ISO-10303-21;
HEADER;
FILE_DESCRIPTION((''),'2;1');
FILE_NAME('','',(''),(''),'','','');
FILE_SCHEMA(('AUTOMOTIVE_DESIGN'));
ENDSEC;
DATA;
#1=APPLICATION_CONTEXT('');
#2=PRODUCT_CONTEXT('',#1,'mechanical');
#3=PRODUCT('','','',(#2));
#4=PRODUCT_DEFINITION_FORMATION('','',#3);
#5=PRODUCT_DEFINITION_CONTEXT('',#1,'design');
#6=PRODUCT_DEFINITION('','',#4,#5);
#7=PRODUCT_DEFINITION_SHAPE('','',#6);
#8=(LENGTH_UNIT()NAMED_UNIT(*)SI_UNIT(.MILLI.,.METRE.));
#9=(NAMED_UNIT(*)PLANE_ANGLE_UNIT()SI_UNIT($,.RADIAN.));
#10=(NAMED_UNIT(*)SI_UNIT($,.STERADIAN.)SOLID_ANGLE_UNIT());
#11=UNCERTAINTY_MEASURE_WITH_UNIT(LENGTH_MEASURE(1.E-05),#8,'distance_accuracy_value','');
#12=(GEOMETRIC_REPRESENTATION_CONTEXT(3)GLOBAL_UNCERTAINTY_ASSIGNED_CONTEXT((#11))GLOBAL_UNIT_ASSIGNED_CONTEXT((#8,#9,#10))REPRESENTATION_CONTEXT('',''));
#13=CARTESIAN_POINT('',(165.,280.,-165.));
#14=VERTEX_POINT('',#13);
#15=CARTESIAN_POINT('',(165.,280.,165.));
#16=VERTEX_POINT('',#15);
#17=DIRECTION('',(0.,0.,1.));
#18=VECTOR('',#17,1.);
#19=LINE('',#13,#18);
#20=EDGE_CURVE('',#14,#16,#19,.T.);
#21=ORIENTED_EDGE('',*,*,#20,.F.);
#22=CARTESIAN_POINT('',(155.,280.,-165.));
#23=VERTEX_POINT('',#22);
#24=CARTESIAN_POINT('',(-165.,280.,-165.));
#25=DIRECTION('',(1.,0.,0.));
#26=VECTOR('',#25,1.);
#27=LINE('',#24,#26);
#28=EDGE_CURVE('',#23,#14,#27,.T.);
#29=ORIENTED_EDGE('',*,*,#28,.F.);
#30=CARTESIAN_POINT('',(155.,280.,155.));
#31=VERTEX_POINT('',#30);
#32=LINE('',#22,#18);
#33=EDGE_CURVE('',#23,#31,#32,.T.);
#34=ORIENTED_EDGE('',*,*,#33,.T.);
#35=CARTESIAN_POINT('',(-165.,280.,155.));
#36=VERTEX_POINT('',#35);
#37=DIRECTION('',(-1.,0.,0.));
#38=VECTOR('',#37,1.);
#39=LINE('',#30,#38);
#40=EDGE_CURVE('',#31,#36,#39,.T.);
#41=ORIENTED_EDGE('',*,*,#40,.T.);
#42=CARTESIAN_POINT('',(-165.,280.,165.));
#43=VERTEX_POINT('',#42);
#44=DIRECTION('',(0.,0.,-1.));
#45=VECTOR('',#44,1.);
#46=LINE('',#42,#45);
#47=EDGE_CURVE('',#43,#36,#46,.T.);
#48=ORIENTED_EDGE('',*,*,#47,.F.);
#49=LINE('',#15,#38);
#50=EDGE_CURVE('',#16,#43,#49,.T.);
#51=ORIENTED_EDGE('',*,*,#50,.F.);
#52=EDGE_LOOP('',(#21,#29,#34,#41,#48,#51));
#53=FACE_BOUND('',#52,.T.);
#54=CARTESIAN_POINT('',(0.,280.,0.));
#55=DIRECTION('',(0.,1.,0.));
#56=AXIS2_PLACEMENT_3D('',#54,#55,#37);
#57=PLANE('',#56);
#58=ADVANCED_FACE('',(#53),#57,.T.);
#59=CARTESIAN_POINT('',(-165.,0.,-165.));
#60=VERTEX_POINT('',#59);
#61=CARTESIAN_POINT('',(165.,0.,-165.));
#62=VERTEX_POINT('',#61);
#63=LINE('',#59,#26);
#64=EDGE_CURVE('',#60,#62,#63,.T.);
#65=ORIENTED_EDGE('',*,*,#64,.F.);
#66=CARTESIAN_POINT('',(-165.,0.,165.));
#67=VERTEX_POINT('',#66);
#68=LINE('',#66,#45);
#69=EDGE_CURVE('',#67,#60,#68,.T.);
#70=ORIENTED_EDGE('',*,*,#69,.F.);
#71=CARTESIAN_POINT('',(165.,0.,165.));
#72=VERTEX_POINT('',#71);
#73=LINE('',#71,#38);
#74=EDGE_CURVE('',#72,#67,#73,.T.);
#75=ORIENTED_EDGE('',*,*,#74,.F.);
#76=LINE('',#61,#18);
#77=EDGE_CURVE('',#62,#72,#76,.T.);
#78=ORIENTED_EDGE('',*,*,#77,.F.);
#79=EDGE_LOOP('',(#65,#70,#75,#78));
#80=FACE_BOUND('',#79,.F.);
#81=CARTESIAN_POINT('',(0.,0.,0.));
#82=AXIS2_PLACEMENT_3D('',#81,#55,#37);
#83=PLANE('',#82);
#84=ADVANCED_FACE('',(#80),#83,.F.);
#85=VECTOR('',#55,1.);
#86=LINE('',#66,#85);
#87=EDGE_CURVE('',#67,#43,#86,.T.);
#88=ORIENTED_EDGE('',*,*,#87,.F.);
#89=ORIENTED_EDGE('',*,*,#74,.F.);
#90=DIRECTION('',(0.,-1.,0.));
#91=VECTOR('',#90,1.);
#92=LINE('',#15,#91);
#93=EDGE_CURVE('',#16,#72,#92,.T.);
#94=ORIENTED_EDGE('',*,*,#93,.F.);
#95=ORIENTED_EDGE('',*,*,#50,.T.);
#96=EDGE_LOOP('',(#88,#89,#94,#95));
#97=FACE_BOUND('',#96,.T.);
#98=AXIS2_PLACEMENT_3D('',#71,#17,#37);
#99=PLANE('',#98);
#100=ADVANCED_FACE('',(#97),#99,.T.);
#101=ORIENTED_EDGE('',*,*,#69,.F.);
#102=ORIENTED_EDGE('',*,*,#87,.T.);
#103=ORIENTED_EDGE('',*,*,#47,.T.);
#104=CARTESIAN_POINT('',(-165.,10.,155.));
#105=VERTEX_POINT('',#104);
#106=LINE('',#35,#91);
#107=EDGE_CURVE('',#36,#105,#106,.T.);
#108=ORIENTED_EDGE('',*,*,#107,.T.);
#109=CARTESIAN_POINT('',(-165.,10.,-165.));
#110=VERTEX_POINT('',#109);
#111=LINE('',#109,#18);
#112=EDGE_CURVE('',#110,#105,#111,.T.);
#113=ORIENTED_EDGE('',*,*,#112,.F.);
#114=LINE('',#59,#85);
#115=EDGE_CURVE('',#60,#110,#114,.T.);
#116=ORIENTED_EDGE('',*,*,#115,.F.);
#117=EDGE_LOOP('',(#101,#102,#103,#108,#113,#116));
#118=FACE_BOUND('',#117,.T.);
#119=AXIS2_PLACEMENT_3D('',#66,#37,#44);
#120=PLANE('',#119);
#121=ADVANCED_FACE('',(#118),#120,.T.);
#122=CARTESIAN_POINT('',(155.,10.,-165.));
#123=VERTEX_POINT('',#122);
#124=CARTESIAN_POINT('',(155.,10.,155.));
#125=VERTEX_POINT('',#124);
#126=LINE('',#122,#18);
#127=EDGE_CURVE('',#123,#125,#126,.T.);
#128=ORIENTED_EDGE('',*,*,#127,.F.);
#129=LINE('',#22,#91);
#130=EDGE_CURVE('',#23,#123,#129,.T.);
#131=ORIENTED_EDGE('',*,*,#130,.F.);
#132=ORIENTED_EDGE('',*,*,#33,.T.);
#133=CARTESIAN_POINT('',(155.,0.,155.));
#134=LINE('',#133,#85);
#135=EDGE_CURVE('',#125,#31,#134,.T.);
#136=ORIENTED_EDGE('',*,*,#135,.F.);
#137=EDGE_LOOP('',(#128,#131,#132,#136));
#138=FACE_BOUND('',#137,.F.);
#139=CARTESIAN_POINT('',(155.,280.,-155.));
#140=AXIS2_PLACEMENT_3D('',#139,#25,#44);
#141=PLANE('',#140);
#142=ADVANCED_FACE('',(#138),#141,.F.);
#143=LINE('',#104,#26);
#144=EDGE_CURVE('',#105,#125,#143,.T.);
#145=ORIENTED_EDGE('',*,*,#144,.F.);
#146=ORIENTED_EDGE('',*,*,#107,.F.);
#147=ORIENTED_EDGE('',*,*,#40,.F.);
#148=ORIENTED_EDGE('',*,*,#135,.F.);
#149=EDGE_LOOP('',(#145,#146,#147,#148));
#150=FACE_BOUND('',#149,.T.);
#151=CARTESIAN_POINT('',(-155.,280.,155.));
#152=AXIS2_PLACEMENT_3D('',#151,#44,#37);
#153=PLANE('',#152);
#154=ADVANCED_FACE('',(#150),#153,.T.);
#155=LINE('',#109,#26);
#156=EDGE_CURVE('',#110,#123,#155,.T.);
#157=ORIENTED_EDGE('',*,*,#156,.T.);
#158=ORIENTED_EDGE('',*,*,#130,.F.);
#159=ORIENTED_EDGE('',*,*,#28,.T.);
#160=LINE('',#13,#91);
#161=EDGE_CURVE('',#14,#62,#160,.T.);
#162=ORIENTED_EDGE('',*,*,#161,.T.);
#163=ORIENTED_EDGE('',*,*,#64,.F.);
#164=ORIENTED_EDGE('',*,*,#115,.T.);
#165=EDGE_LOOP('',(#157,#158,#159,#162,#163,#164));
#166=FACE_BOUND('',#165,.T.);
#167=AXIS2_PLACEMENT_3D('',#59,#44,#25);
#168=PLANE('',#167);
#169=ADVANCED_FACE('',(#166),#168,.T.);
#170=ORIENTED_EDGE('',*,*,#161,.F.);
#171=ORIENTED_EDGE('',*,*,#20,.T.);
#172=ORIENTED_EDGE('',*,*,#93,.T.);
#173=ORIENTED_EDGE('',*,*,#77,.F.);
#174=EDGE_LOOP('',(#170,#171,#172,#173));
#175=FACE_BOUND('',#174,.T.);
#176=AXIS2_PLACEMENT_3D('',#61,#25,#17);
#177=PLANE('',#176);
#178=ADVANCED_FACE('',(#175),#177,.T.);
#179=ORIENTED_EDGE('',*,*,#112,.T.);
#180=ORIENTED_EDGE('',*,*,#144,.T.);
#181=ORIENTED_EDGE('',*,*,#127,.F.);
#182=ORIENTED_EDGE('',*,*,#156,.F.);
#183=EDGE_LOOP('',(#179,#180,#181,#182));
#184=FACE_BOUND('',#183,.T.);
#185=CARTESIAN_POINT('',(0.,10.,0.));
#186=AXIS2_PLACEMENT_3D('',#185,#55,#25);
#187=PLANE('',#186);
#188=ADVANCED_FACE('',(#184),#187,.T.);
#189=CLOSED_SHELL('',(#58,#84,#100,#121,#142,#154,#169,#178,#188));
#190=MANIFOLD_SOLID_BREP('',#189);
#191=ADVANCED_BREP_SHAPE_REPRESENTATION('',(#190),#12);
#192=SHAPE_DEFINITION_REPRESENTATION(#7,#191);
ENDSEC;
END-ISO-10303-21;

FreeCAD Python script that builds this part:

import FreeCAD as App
import Part
import Sketcher

V = App.Vector

doc = App.newDocument("Part")
params = doc.addObject("Spreadsheet::Sheet", "Params")
for row, (alias, value) in enumerate([
    ("sketch1_width", "330 mm"),
    ("pad1_length", "10 mm"),
    ("sketch2_width", "310 mm"),
    ("sketch2_width2", "330 mm"),
    ("pad2_length", "280 mm"),
    ("sketch3_width", "310 mm"),
    ("sketch3_height", "10 mm"),
    ("pocket1_length", "270 mm"),
    ("sketch4_width", "10 mm"),
    ("sketch4_height", "320 mm"),
    ("pocket2_length", "270 mm"),
], start=1):
    params.set(f"A{row}", alias)
    params.set(f"B{row}", "=" + value)
    params.setAlias(f"B{row}", alias)

body = doc.addObject("PartDesign::Body", "Body")

# Sketch on XZ plane
sketch1 = body.newObject("Sketcher::SketchObject", "Sketch")
sketch1.AttachmentSupport = (doc.getObject("XZ_Plane"), [""])
sketch1.MapMode = "FlatFace"
sketch1.addGeometry(Part.LineSegment(V(165, -165, 0), V(-165, -165, 0)), False)
sketch1.addGeometry(Part.LineSegment(V(-165, -165, 0), V(-165, 165, 0)), False)
sketch1.addGeometry(Part.LineSegment(V(-165, 165, 0), V(165, 165, 0)), False)
sketch1.addGeometry(Part.LineSegment(V(165, 165, 0), V(165, -165, 0)), False)
sketch1.addConstraint(Sketcher.Constraint("Coincident", 0, 2, 1, 1))
sketch1.addConstraint(Sketcher.Constraint("Coincident", 1, 2, 2, 1))
sketch1.addConstraint(Sketcher.Constraint("Coincident", 2, 2, 3, 1))
sketch1.addConstraint(Sketcher.Constraint("Coincident", 3, 2, 0, 1))
sketch1.addConstraint(Sketcher.Constraint("Horizontal", 0))
sketch1.addConstraint(Sketcher.Constraint("Vertical", 1))
sketch1.addConstraint(Sketcher.Constraint("Horizontal", 2))
sketch1.addConstraint(Sketcher.Constraint("Vertical", 3))
sketch1.addConstraint(Sketcher.Constraint("Symmetric", 0, 2, 2, 2, -1, 1))
sketch1.addConstraint(Sketcher.Constraint("Equal", 2, 1))
sketch1.addConstraint(Sketcher.Constraint("DistanceX", 0, 2, 0, 1, 330.0))
sketch1.setExpression("Constraints[10]", "Params.sketch1_width")
pad1 = body.newObject("PartDesign::Pad", "Pad")
pad1.Profile = sketch1
pad1.setExpression("Length", "Params.pad1_length")
pad1.Reversed = True

# Sketch on XZ plane
sketch2 = body.newObject("Sketcher::SketchObject", "Sketch001")
sketch2.AttachmentSupport = (doc.getObject("XZ_Plane"), [""])
sketch2.MapMode = "FlatFace"
sketch2.addGeometry(Part.LineSegment(V(165, -165, 0), V(-165, -165, 0)), False)
sketch2.addGeometry(Part.LineSegment(V(-165, -165, 0), V(-165, 165, 0)), False)
sketch2.addGeometry(Part.LineSegment(V(-165, 165, 0), V(165, 165, 0)), False)
sketch2.addGeometry(Part.LineSegment(V(165, 165, 0), V(165, -165, 0)), False)
sketch2.addGeometry(Part.LineSegment(V(155, 155, 0), V(-155, 155, 0)), False)
sketch2.addGeometry(Part.LineSegment(V(-155, 155, 0), V(-155, -155, 0)), False)
sketch2.addGeometry(Part.LineSegment(V(-155, -155, 0), V(155, -155, 0)), False)
sketch2.addGeometry(Part.LineSegment(V(155, -155, 0), V(155, 155, 0)), False)
sketch2.addConstraint(Sketcher.Constraint("Coincident", 0, 2, 1, 1))
sketch2.addConstraint(Sketcher.Constraint("Coincident", 1, 2, 2, 1))
sketch2.addConstraint(Sketcher.Constraint("Coincident", 2, 2, 3, 1))
sketch2.addConstraint(Sketcher.Constraint("Coincident", 3, 2, 0, 1))
sketch2.addConstraint(Sketcher.Constraint("Coincident", 4, 2, 5, 1))
sketch2.addConstraint(Sketcher.Constraint("Coincident", 5, 2, 6, 1))
sketch2.addConstraint(Sketcher.Constraint("Coincident", 6, 2, 7, 1))
sketch2.addConstraint(Sketcher.Constraint("Coincident", 7, 2, 4, 1))
sketch2.addConstraint(Sketcher.Constraint("Horizontal", 0))
sketch2.addConstraint(Sketcher.Constraint("Vertical", 1))
sketch2.addConstraint(Sketcher.Constraint("Horizontal", 2))
sketch2.addConstraint(Sketcher.Constraint("Vertical", 3))
sketch2.addConstraint(Sketcher.Constraint("Horizontal", 4))
sketch2.addConstraint(Sketcher.Constraint("Vertical", 5))
sketch2.addConstraint(Sketcher.Constraint("Horizontal", 6))
sketch2.addConstraint(Sketcher.Constraint("Vertical", 7))
sketch2.addConstraint(Sketcher.Constraint("Symmetric", 0, 2, 2, 2, -1, 1))
sketch2.addConstraint(Sketcher.Constraint("Symmetric", 4, 2, 6, 2, -1, 1))
sketch2.addConstraint(Sketcher.Constraint("Equal", 2, 1))
sketch2.addConstraint(Sketcher.Constraint("Equal", 6, 5))
sketch2.addConstraint(Sketcher.Constraint("DistanceX", 4, 2, 4, 1, 310.0))
sketch2.addConstraint(Sketcher.Constraint("DistanceX", 0, 2, 0, 1, 330.0))
sketch2.setExpression("Constraints[20]", "Params.sketch2_width")
sketch2.setExpression("Constraints[21]", "Params.sketch2_width2")
pad2 = body.newObject("PartDesign::Pad", "Pad001")
pad2.Profile = sketch2
pad2.setExpression("Length", "Params.pad2_length")
pad2.Reversed = True

# Sketch on XZ plane
sketch3 = body.newObject("Sketcher::SketchObject", "Sketch002")
sketch3.AttachmentSupport = (doc.getObject("XZ_Plane"), [""])
sketch3.MapMode = "FlatFace"
sketch3.AttachmentOffset = App.Placement(V(0, 0, -280), App.Rotation())
sketch3.addGeometry(Part.LineSegment(V(155, -155, 0), V(155, -165, 0)), False)
sketch3.addGeometry(Part.LineSegment(V(155, -165, 0), V(-155, -165, 0)), False)
sketch3.addGeometry(Part.LineSegment(V(-155, -165, 0), V(-155, -155, 0)), False)
sketch3.addGeometry(Part.LineSegment(V(-155, -155, 0), V(155, -155, 0)), False)
sketch3.addConstraint(Sketcher.Constraint("Coincident", 0, 2, 1, 1))
sketch3.addConstraint(Sketcher.Constraint("Coincident", 1, 2, 2, 1))
sketch3.addConstraint(Sketcher.Constraint("Coincident", 2, 2, 3, 1))
sketch3.addConstraint(Sketcher.Constraint("Coincident", 3, 2, 0, 1))
sketch3.addConstraint(Sketcher.Constraint("Vertical", 0))
sketch3.addConstraint(Sketcher.Constraint("Horizontal", 1))
sketch3.addConstraint(Sketcher.Constraint("Vertical", 2))
sketch3.addConstraint(Sketcher.Constraint("Horizontal", 3))
sketch3.addConstraint(Sketcher.Constraint("DistanceX", 1, 2, 1, 1, 310.0))
sketch3.addConstraint(Sketcher.Constraint("DistanceY", 0, 2, 0, 1, 10.0))
sketch3.addConstraint(Sketcher.Constraint("DistanceX", -1, 1, 0, 2, 155.0))
sketch3.addConstraint(Sketcher.Constraint("DistanceY", 0, 2, -1, 1, 165.0))
sketch3.setExpression("Constraints[8]", "Params.sketch3_width")
sketch3.setExpression("Constraints[9]", "Params.sketch3_height")
pocket1 = body.newObject("PartDesign::Pocket", "Pocket")
pocket1.Profile = sketch3
pocket1.setExpression("Length", "Params.pocket1_length")
pocket1.Reversed = True

# Sketch on XZ plane
sketch4 = body.newObject("Sketcher::SketchObject", "Sketch003")
sketch4.AttachmentSupport = (doc.getObject("XZ_Plane"), [""])
sketch4.MapMode = "FlatFace"
sketch4.AttachmentOffset = App.Placement(V(0, 0, -280), App.Rotation())
sketch4.addGeometry(Part.LineSegment(V(-165, 155, 0), V(-155, 155, 0)), False)
sketch4.addGeometry(Part.LineSegment(V(-155, 155, 0), V(-155, -165, 0)), False)
sketch4.addGeometry(Part.LineSegment(V(-155, -165, 0), V(-165, -165, 0)), False)
sketch4.addGeometry(Part.LineSegment(V(-165, -165, 0), V(-165, 155, 0)), False)
sketch4.addConstraint(Sketcher.Constraint("Coincident", 0, 2, 1, 1))
sketch4.addConstraint(Sketcher.Constraint("Coincident", 1, 2, 2, 1))
sketch4.addConstraint(Sketcher.Constraint("Coincident", 2, 2, 3, 1))
sketch4.addConstraint(Sketcher.Constraint("Coincident", 3, 2, 0, 1))
sketch4.addConstraint(Sketcher.Constraint("Horizontal", 0))
sketch4.addConstraint(Sketcher.Constraint("Vertical", 1))
sketch4.addConstraint(Sketcher.Constraint("Horizontal", 2))
sketch4.addConstraint(Sketcher.Constraint("Vertical", 3))
sketch4.addConstraint(Sketcher.Constraint("DistanceX", 0, 1, 0, 2, 10.0))
sketch4.addConstraint(Sketcher.Constraint("DistanceY", 1, 2, 1, 1, 320.0))
sketch4.addConstraint(Sketcher.Constraint("DistanceX", 0, 2, -1, 1, 155.0))
sketch4.addConstraint(Sketcher.Constraint("DistanceY", -1, 1, 0, 2, 155.0))
sketch4.setExpression("Constraints[8]", "Params.sketch4_width")
sketch4.setExpression("Constraints[9]", "Params.sketch4_height")
pocket2 = body.newObject("PartDesign::Pocket", "Pocket001")
pocket2.Profile = sketch4
pocket2.setExpression("Length", "Params.pocket2_length")
pocket2.Reversed = True

doc.recompute()
